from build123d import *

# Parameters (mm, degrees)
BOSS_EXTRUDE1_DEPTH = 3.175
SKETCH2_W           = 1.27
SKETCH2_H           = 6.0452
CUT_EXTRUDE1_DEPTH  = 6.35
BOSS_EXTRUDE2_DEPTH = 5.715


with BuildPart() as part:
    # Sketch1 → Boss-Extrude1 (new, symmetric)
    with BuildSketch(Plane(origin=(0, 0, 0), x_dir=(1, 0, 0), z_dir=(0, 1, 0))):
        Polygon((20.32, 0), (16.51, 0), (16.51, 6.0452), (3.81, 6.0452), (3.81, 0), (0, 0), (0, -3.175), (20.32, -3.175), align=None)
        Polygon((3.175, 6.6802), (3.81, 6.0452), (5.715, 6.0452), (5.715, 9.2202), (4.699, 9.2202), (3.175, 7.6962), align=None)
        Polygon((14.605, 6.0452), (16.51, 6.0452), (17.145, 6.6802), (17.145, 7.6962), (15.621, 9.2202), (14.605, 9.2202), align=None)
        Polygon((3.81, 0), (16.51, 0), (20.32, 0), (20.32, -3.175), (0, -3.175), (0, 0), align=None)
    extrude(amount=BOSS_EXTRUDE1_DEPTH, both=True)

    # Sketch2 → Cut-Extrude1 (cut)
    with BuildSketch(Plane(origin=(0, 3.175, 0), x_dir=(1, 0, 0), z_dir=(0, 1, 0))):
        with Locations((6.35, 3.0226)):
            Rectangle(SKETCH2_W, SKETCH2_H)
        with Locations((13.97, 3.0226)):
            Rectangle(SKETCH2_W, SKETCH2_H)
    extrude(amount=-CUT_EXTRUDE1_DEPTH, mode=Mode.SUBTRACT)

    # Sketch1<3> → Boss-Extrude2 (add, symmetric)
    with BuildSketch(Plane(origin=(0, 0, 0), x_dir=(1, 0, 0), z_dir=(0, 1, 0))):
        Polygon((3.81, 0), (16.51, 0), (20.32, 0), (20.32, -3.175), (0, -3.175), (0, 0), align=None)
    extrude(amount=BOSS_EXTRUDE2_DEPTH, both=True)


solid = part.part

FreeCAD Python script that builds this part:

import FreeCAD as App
import Part
import Sketcher
Q = App.Units.Quantity


def add_polygon(sketch, points):
    """Adds a closed chain of lines whose ends are joined by coincident constraints."""
    first, n = sketch.GeometryCount, len(points)
    for a, b in zip(points, points[1:] + points[:1]):
        sketch.addGeometry(Part.LineSegment(App.Vector(*a, 0), App.Vector(*b, 0)), False)
    for i in range(n):
        sketch.addConstraint(Sketcher.Constraint("Coincident", first + i, 2, first + (i + 1) % n, 1))

doc = App.newDocument("Part")
body = doc.addObject("PartDesign::Body", "Body")

# Sketch on XZ plane
sketch1 = body.newObject("Sketcher::SketchObject", "Sketch")
sketch1.AttachmentSupport = (doc.getObject("XZ_Plane"), [""])
sketch1.MapMode = "FlatFace"
add_polygon(sketch1, [(20.3, 3.2), (20.3, 0), (16.5, 0), (16.5, -6), (17.1, -6.7), (17.1, -7.7), (15.6, -9.2), (14.6, -9.2), (14.6, -6), (5.7, -6), (5.7, -9.2), (4.7, -9.2), (3.2, -7.7), (3.2, -6.7), (3.8, -6), (3.8, 0), (0, 0), (0, 3.2)])  # lines 0-17
sketch1.addConstraint(Sketcher.Constraint("Vertical", 0))
sketch1.addConstraint(Sketcher.Constraint("Horizontal", 1))
sketch1.addConstraint(Sketcher.Constraint("Vertical", 2))
sketch1.addConstraint(Sketcher.Constraint("Vertical", 4))
sketch1.addConstraint(Sketcher.Constraint("Horizontal", 6))
sketch1.addConstraint(Sketcher.Constraint("Vertical", 7))
sketch1.addConstraint(Sketcher.Constraint("Horizontal", 8))
sketch1.addConstraint(Sketcher.Constraint("Vertical", 9))
sketch1.addConstraint(Sketcher.Constraint("Horizontal", 10))
sketch1.addConstraint(Sketcher.Constraint("Vertical", 12))
sketch1.addConstraint(Sketcher.Constraint("Vertical", 14))
sketch1.addConstraint(Sketcher.Constraint("Horizontal", 15))
sketch1.addConstraint(Sketcher.Constraint("Vertical", 16))
sketch1.addConstraint(Sketcher.Constraint("Horizontal", 17))
sketch1.addConstraint(Sketcher.Constraint("Coincident", 15, 2, -1, 1))
sketch1.addConstraint(Sketcher.Constraint("PointOnObject", 0, 2, -1))
sketch1.addConstraint(Sketcher.Constraint("Perpendicular", 3, 5))
sketch1.addConstraint(Sketcher.Constraint("Perpendicular", 5, 11))
sketch1.addConstraint(Sketcher.Constraint("Perpendicular", 11, 13))
sketch1.addConstraint(Sketcher.Constraint("Horizontal", 2, 2, 7, 2))
sketch1.addConstraint(Sketcher.Constraint("Horizontal", 6, 2, 9, 2))
sketch1.addConstraint(Sketcher.Constraint("Horizontal", 4, 2, 11, 2))
sketch1.addConstraint(Sketcher.Constraint("Horizontal", 3, 2, 12, 2))
sketch1.addConstraint(Sketcher.Constraint("Horizontal", 8, 2, 13, 2))
sketch1.addConstraint(Sketcher.Constraint("Equal", 6, 10))
sketch1.addConstraint(Sketcher.Constraint("Equal", 1, 15))
sketch1.addConstraint(Sketcher.Constraint("Equal", 10, 4))
sketch1.addConstraint(Sketcher.Constraint("Equal", 0, 7))
sketch1.addConstraint(Sketcher.Constraint("Equal", 5, 11))
sketch1.addConstraint(Sketcher.Constraint("DistanceX", 17, 1, 17, 2, Q("0.8 in")))
sketch1.addConstraint(Sketcher.Constraint("DistanceX", 1, 2, 1, 1, Q("0.15 in")))
sketch1.addConstraint(Sketcher.Constraint("DistanceX", 6, 2, 6, 1, Q("0.04 in")))
sketch1.addConstraint(Sketcher.Constraint("DistanceX", 8, 2, 8, 1, Q("0.35 in")))
sketch1.addConstraint(Sketcher.Constraint("DistanceY", 5, 2, 3, 2, Q("0.1 in")))
sketch1.addConstraint(Sketcher.Constraint("DistanceY", 2, 2, 2, 1, Q("0.238 in")))
pad1 = body.newObject("PartDesign::Pad", "Pad")
pad1.Profile = sketch1
pad1.Length = Q("0.25 in")
pad1.Midplane = True

# Sketch on XZ plane
sketch2 = body.newObject("Sketcher::SketchObject", "Sketch001")
sketch2.AttachmentSupport = (doc.getObject("XZ_Plane"), [""])
sketch2.MapMode = "FlatFace"
sketch2.AttachmentOffset = App.Placement(App.Vector(0, 0, -0.125 * 25.4), App.Rotation())
add_polygon(sketch2, [(5.7, -6), (5.7, 0), (7, 0), (7, -6)])  # lines 0-3
add_polygon(sketch2, [(13.3, -6), (13.3, 0), (14.6, 0), (14.6, -6)])  # lines 4-7
sketch2.addConstraint(Sketcher.Constraint("Vertical", 0))
sketch2.addConstraint(Sketcher.Constraint("Horizontal", 1))
sketch2.addConstraint(Sketcher.Constraint("Vertical", 2))
sketch2.addConstraint(Sketcher.Constraint("Horizontal", 3))
sketch2.addConstraint(Sketcher.Constraint("Vertical", 4))
sketch2.addConstraint(Sketcher.Constraint("Horizontal", 5))
sketch2.addConstraint(Sketcher.Constraint("Vertical", 6))
sketch2.addConstraint(Sketcher.Constraint("Horizontal", 7))
sketch2.addConstraint(Sketcher.Constraint("PointOnObject", 0, 2, -1))
sketch2.addConstraint(Sketcher.Constraint("PointOnObject", 4, 2, -1))
sketch2.addConstraint(Sketcher.Constraint("Horizontal", 3, 2, 6, 2))
sketch2.addConstraint(Sketcher.Constraint("Equal", 3, 5))
sketch2.addConstraint(Sketcher.Constraint("DistanceX", 1, 1, 1, 2, Q("0.05 in")))
sketch2.addConstraint(Sketcher.Constraint("DistanceX", 0, 2, 4, 2, Q("0.3 in")))
sketch2.addConstraint(Sketcher.Constraint("DistanceY", 0, 1, 0, 2, Q("0.238 in")))
sketch2.addConstraint(Sketcher.Constraint("DistanceX", -1, 1, 0, 2, Q("0.225 in")))
pocket1 = body.newObject("PartDesign::Pocket", "Pocket")
pocket1.Profile = sketch2
pocket1.Length = Q("0.25 in")
pocket1.Reversed = True

# Sketch on XZ plane
sketch3 = body.newObject("Sketcher::SketchObject", "Sketch002")
sketch3.AttachmentSupport = (doc.getObject("XZ_Plane"), [""])
sketch3.MapMode = "FlatFace"
add_polygon(sketch3, [(20.3, 0), (0, 0), (0, 3.2), (20.3, 3.2)])  # lines 0-3
sketch3.addConstraint(Sketcher.Constraint("Horizontal", 0))
sketch3.addConstraint(Sketcher.Constraint("Vertical", 1))
sketch3.addConstraint(Sketcher.Constraint("Horizontal", 2))
sketch3.addConstraint(Sketcher.Constraint("Vertical", 3))
sketch3.addConstraint(Sketcher.Constraint("Coincident", 0, 2, -1, 1))
sketch3.addConstraint(Sketcher.Constraint("DistanceX", 0, 2, 0, 1, Q("0.8 in")))
sketch3.addConstraint(Sketcher.Constraint("DistanceY", 1, 1, 1, 2, Q("0.125 in")))
pad2 = body.newObject("PartDesign::Pad", "Pad001")
pad2.Profile = sketch3
pad2.Length = Q("0.45 in")
pad2.Midplane = True

doc.recompute()
